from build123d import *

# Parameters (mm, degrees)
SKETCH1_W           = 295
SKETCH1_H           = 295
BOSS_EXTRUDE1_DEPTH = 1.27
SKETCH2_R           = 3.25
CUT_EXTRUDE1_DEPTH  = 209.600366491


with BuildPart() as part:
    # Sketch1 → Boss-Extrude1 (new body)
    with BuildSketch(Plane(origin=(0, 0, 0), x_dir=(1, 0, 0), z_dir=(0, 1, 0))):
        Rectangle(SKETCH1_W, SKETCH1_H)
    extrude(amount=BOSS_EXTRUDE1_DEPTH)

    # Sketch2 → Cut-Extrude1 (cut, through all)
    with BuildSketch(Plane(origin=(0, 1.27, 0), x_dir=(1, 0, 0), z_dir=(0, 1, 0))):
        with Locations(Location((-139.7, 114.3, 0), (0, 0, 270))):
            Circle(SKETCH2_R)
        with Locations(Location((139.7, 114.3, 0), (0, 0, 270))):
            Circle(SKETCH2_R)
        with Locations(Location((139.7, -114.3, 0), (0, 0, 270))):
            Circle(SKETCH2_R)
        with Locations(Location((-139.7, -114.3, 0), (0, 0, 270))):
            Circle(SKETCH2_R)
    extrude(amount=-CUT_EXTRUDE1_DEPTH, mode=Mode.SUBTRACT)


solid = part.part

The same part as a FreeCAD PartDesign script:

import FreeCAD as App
import Part
import Sketcher

V = App.Vector

doc = App.newDocument("Part")
params = doc.addObject("Spreadsheet::Sheet", "Params")
for row, (alias, value) in enumerate([
    ("sketch1_width", "295 mm"),
    ("pad1_length", "1.27 mm"),
    ("sketch2_diameter", "6.5 mm"),
], start=1):
    params.set(f"A{row}", alias)
    params.set(f"B{row}", "=" + value)
    params.setAlias(f"B{row}", alias)

body = doc.addObject("PartDesign::Body", "Body")

sketch1 = body.newObject("Sketcher::SketchObject", "Sketch")
sketch1.AttachmentSupport = (doc.getObject("XZ_Plane"), [""])
sketch1.MapMode = "FlatFace"
sketch1.addGeometry(Part.LineSegment(V(-147.5, -147.5, 0), V(-147.5, 147.5, 0)), False)
sketch1.addGeometry(Part.LineSegment(V(-147.5, 147.5, 0), V(147.5, 147.5, 0)), False)
sketch1.addGeometry(Part.LineSegment(V(147.5, 147.5, 0), V(147.5, -147.5, 0)), False)
sketch1.addGeometry(Part.LineSegment(V(147.5, -147.5, 0), V(-147.5, -147.5, 0)), False)
sketch1.addConstraint(Sketcher.Constraint("Coincident", 0, 2, 1, 1))
sketch1.addConstraint(Sketcher.Constraint("Coincident", 1, 2, 2, 1))
sketch1.addConstraint(Sketcher.Constraint("Coincident", 2, 2, 3, 1))
sketch1.addConstraint(Sketcher.Constraint("Coincident", 3, 2, 0, 1))
sketch1.addConstraint(Sketcher.Constraint("Vertical", 0))
sketch1.addConstraint(Sketcher.Constraint("Horizontal", 1))
sketch1.addConstraint(Sketcher.Constraint("Vertical", 2))
sketch1.addConstraint(Sketcher.Constraint("Horizontal", 3))
sketch1.addConstraint(Sketcher.Constraint("Symmetric", 0, 2, 2, 2, -1, 1))
sketch1.addConstraint(Sketcher.Constraint("Equal", 3, 0))
sketch1.addConstraint(Sketcher.Constraint("DistanceX", 1, 1, 1, 2, 295.0))
sketch1.setExpression("Constraints[10]", "Params.sketch1_width")
pad1 = body.newObject("PartDesign::Pad", "Pad")
pad1.Profile = sketch1
pad1.setExpression("Length", "Params.pad1_length")
pad1.Reversed = True

sketch2 = body.newObject("Sketcher::SketchObject", "Sketch001")
sketch2.AttachmentSupport = (doc.getObject("XZ_Plane"), [""])
sketch2.MapMode = "FlatFace"
sketch2.AttachmentOffset = App.Placement(V(0, 0, -1.27), App.Rotation())
sketch2.addGeometry(Part.Circle(V(-139.7, -114.3, 0), V(0, 0, 1), 3.25), False)
sketch2.addGeometry(Part.Circle(V(139.7, -114.3, 0), V(0, 0, 1), 3.25), False)
sketch2.addGeometry(Part.Circle(V(139.7, 114.3, 0), V(0, 0, 1), 3.25), False)
sketch2.addGeometry(Part.Circle(V(-139.7, 114.3, 0), V(0, 0, 1), 3.25), False)
sketch2.addConstraint(Sketcher.Constraint("Equal", 0, 1))
sketch2.addConstraint(Sketcher.Constraint("Equal", 1, 2))
sketch2.addConstraint(Sketcher.Constraint("Equal", 2, 3))
sketch2.addConstraint(Sketcher.Constraint("Symmetric", 0, 3, 2, 3, -1, 1))
sketch2.addConstraint(Sketcher.Constraint("Symmetric", 1, 3, 3, 3, -1, 1))
sketch2.addConstraint(Sketcher.Constraint("Symmetric", 0, 3, 1, 3, -2))
sketch2.addConstraint(Sketcher.Constraint("Diameter", 0, 6.5))
sketch2.addConstraint(Sketcher.Constraint("DistanceX", 0, 3, -1, 1, 139.7))
sketch2.addConstraint(Sketcher.Constraint("DistanceY", 0, 3, -1, 1, 114.3))
sketch2.setExpression("Constraints[6]", "Params.sketch2_diameter")
pocket1 = body.newObject("PartDesign::Pocket", "Pocket")
pocket1.Profile = sketch2
pocket1.Type = "ThroughAll"
pocket1.Reversed = True

doc.recompute()
